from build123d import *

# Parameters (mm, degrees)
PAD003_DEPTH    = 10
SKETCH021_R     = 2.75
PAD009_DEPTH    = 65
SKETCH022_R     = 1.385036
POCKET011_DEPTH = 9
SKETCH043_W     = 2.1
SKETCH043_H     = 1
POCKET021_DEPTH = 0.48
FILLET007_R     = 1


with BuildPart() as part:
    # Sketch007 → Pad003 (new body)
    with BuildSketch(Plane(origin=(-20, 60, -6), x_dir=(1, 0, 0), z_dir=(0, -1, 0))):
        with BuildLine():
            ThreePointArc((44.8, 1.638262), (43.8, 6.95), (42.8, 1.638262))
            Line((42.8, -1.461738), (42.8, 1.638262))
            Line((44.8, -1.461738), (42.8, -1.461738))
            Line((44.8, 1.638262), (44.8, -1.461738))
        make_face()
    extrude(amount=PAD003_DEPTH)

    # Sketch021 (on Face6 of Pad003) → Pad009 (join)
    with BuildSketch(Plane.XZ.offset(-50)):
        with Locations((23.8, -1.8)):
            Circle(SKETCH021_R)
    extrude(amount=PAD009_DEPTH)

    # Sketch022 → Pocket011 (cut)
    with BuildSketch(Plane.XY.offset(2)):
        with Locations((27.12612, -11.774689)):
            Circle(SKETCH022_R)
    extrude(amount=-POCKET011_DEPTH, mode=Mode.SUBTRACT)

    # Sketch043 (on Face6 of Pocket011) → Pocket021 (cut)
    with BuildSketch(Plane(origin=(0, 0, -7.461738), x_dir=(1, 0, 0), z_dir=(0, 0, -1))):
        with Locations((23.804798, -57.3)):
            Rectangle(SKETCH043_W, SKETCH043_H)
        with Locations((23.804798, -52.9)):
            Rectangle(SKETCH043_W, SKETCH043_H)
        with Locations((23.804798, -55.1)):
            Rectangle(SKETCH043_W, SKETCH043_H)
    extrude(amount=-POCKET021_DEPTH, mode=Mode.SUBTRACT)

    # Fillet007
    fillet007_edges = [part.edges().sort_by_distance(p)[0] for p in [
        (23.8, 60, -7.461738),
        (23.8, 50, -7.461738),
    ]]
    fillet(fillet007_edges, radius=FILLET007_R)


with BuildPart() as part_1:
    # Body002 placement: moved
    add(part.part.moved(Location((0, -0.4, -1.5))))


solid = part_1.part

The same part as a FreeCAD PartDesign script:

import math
import FreeCAD as App
import Part
import Sketcher
Q = App.Units.Quantity


def edges_at(feature, points):
    """Names of the edges that pass closest to the given points."""
    edges = feature.Shape.Edges
    near = lambda p: min(range(len(edges)), key=lambda i: edges[i].distToShape(Part.Vertex(*p))[0])
    return sorted({f"Edge{near(p) + 1}" for p in points})


def add_polygon(sketch, points):
    """Adds a closed chain of lines whose ends are joined by coincident constraints."""
    first, n = sketch.GeometryCount, len(points)
    for a, b in zip(points, points[1:] + points[:1]):
        sketch.addGeometry(Part.LineSegment(App.Vector(*a, 0), App.Vector(*b, 0)), False)
    for i in range(n):
        sketch.addConstraint(Sketcher.Constraint("Coincident", first + i, 2, first + (i + 1) % n, 1))

doc = App.newDocument("Part")
body = doc.addObject("PartDesign::Body", "Body")

sketch1 = body.newObject("Sketcher::SketchObject", "Sketch")
sketch1.AttachmentSupport = (doc.getObject("XZ_Plane"), [""])
sketch1.MapMode = "FlatFace"
sketch1.AttachmentOffset = App.Placement(App.Vector(0, 0, -60), App.Rotation())
sketch1.addGeometry([
    Part.ArcOfCircle(Part.Circle(App.Vector(23.8, -1.8, 0), App.Vector(0, 0, 1), 2.75), math.radians(-68.676315), math.radians(248.676315)),
    Part.LineSegment(App.Vector(22.8, -4.361738, 0), App.Vector(22.8, -7.461738, 0)),
    Part.LineSegment(App.Vector(22.8, -7.461738, 0), App.Vector(24.8, -7.461738, 0)),
    Part.LineSegment(App.Vector(24.8, -7.461738, 0), App.Vector(24.8, -4.361738, 0)),
], False)
sketch1.addConstraint([
    Sketcher.Constraint("Coincident", 0, 2, 1, 1),
    Sketcher.Constraint("Coincident", 1, 2, 2, 1),
    Sketcher.Constraint("Coincident", 2, 2, 3, 1),
    Sketcher.Constraint("Coincident", 3, 2, 0, 1),
    Sketcher.Constraint("Vertical", 1),
    Sketcher.Constraint("Horizontal", 2),
    Sketcher.Constraint("Vertical", 3),
    Sketcher.Constraint("Horizontal", 0, 2, 3, 2),
    Sketcher.Constraint("DistanceX", 2, 1, 2, 2, Q("2 mm")),
    Sketcher.Constraint("Radius", 0, Q("2.75 mm")),
    Sketcher.Constraint("DistanceY", 1, 2, 1, 1, Q("3.1 mm")),
    Sketcher.Constraint("DistanceX", -1, 1, 0, 3, Q("23.8 mm")),
    Sketcher.Constraint("DistanceY", 0, 3, -1, 1, Q("1.8 mm")),
])
pad1 = body.newObject("PartDesign::Pad", "Pad")
pad1.Profile = sketch1
pad1.Length = 10

sketch2 = body.newObject("Sketcher::SketchObject", "Sketch001")
sketch2.AttachmentSupport = (doc.getObject("XZ_Plane"), [""])
sketch2.MapMode = "FlatFace"
sketch2.AttachmentOffset = App.Placement(App.Vector(0, 0, -50), App.Rotation())
sketch2.addGeometry(Part.Circle(App.Vector(23.8, -1.8, 0), App.Vector(0, 0, 1), 2.75), False)
sketch2.addConstraint([
    Sketcher.Constraint("Diameter", 0, Q("5.5 mm")),
    Sketcher.Constraint("DistanceX", -1, 1, 0, 3, Q("23.8 mm")),
    Sketcher.Constraint("DistanceY", 0, 3, -1, 1, Q("1.8 mm")),
])
pad2 = body.newObject("PartDesign::Pad", "Pad001")
pad2.Profile = sketch2
pad2.Length = 65

sketch3 = body.newObject("Sketcher::SketchObject", "Sketch002")
sketch3.AttachmentSupport = (doc.getObject("XY_Plane"), [""])
sketch3.MapMode = "FlatFace"
sketch3.AttachmentOffset = App.Placement(App.Vector(0, 0, 2), App.Rotation())
sketch3.addGeometry(Part.Circle(App.Vector(27.12612, -11.774689, 0), App.Vector(0, 0, 1), 1.385036), False)
sketch3.addConstraint([
    Sketcher.Constraint("Diameter", 0, Q("2.770072 mm")),
    Sketcher.Constraint("DistanceX", -1, 1, 0, 3, Q("27.12612 mm")),
    Sketcher.Constraint("DistanceY", 0, 3, -1, 1, Q("11.774689 mm")),
])
pocket1 = body.newObject("PartDesign::Pocket", "Pocket")
pocket1.Profile = sketch3
pocket1.Length = 9

sketch4 = body.newObject("Sketcher::SketchObject", "Sketch003")
sketch4.AttachmentSupport = (doc.getObject("XY_Plane"), [""])
sketch4.MapMode = "FlatFace"
sketch4.AttachmentOffset = App.Placement(App.Vector(0, 0, -7.461738), App.Rotation())
add_polygon(sketch4, [(22.754798, 56.8), (22.754798, 57.8), (24.854798, 57.8), (24.854798, 56.8)])
add_polygon(sketch4, [(22.754798, 52.4), (22.754798, 53.4), (24.854798, 53.4), (24.854798, 52.4)])
add_polygon(sketch4, [(22.754798, 54.6), (22.754798, 55.6), (24.854798, 55.6), (24.854798, 54.6)])
sketch4.addConstraint([
    Sketcher.Constraint("Vertical", 0),
    Sketcher.Constraint("Horizontal", 1),
    Sketcher.Constraint("Vertical", 2),
    Sketcher.Constraint("Horizontal", 3),
    Sketcher.Constraint("Vertical", 4),
    Sketcher.Constraint("Horizontal", 5),
    Sketcher.Constraint("Vertical", 6),
    Sketcher.Constraint("Horizontal", 7),
    Sketcher.Constraint("Vertical", 8),
    Sketcher.Constraint("Horizontal", 9),
    Sketcher.Constraint("Vertical", 10),
    Sketcher.Constraint("Horizontal", 11),
    Sketcher.Constraint("Vertical", 3, 2, 4, 2),
    Sketcher.Constraint("Vertical", 2, 2, 5, 2),
    Sketcher.Constraint("Vertical", 7, 2, 8, 2),
    Sketcher.Constraint("Vertical", 6, 2, 9, 2),
    Sketcher.Constraint("Equal", 2, 4),
    Sketcher.Constraint("Equal", 6, 8),
    Sketcher.Constraint("DistanceY", 0, 1, 0, 2, Q("1 mm")),
    Sketcher.Constraint("DistanceX", 1, 1, 1, 2, Q("2.1 mm")),
    Sketcher.Constraint("DistanceY", -1, 1, 0, 2, Q("57.8 mm")),
    Sketcher.Constraint("DistanceY", -1, 1, 4, 2, Q("53.4 mm")),
    Sketcher.Constraint("DistanceY", -1, 1, 8, 2, Q("55.6 mm")),
    Sketcher.Constraint("DistanceX", -1, 1, 0, 2, Q("22.754798 mm")),
])
pocket2 = body.newObject("PartDesign::Pocket", "Pocket001")
pocket2.Profile = sketch4
pocket2.Length = 0.48
pocket2.Reversed = True
doc.recompute()

fillet = body.newObject("PartDesign::Fillet", "Fillet")
fillet.Base = (pocket2, edges_at(pocket2, [(23.8, 60, -7.462), (23.8, 50, -7.462)]))
fillet.Radius = 1
body2 = doc.addObject("PartDesign::Body", "Body001")
doc.recompute()

body.Placement = App.Placement(App.Vector(0, -0.4, -1.5), App.Rotation(App.Vector(0, 0, 1), 0))
boolean = body2.newObject("PartDesign::Boolean", "Boolean")
boolean.Type = "Fuse"
boolean.addObjects([body])

doc.recompute()
